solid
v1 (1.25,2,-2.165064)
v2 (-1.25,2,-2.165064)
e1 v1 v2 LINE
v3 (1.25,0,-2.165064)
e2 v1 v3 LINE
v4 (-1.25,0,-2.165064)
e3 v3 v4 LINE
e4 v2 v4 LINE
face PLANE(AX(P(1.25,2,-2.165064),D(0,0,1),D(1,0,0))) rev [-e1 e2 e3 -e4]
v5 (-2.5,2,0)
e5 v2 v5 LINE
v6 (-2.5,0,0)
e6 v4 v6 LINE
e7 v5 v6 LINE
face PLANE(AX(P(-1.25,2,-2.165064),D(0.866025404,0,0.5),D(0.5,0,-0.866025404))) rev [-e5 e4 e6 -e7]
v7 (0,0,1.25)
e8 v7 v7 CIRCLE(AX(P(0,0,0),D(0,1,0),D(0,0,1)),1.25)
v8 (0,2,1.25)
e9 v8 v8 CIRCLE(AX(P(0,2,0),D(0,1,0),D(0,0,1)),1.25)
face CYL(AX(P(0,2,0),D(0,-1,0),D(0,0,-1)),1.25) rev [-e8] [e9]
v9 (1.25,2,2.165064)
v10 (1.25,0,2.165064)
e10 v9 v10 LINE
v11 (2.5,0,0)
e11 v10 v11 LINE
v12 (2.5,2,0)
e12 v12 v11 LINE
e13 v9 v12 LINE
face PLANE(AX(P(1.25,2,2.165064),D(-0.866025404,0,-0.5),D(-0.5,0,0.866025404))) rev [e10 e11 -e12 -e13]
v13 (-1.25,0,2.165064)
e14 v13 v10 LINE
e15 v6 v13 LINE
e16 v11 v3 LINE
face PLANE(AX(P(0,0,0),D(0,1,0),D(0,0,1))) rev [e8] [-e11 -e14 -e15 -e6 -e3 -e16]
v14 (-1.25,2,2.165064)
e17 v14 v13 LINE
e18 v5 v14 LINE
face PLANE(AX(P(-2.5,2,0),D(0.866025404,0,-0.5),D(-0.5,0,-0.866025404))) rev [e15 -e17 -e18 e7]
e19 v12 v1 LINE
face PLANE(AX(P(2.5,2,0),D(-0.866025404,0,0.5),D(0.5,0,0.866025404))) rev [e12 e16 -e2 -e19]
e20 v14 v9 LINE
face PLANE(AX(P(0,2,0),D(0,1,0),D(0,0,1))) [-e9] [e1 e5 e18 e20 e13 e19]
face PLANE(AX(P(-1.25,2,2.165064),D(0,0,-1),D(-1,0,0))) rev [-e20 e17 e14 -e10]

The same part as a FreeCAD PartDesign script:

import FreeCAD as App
import Part
import Sketcher

V = App.Vector
Q = App.Units.Quantity


def add_polygon(sketch, points):
    """Adds a closed chain of lines whose ends are joined by coincident constraints."""
    first, n = sketch.GeometryCount, len(points)
    for a, b in zip(points, points[1:] + points[:1]):
        sketch.addGeometry(Part.LineSegment(App.Vector(*a, 0), App.Vector(*b, 0)), False)
    for i in range(n):
        sketch.addConstraint(Sketcher.Constraint("Coincident", first + i, 2, first + (i + 1) % n, 1))

doc = App.newDocument("Part")
body = doc.addObject("PartDesign::Body", "Body")

sketch1 = body.newObject("Sketcher::SketchObject", "Sketch")
sketch1.AttachmentSupport = (doc.getObject("XZ_Plane"), [""])
sketch1.MapMode = "FlatFace"
add_polygon(sketch1, [(1.2, -2.2), (-1.2, -2.2), (-2.5, 0), (-1.2, 2.2), (1.2, 2.2), (2.5, 0)])
sketch1.addGeometry(Part.Circle(V(0, 0, 0), V(0, 0, 1), 1.2), False)
sketch1.addConstraint([
    Sketcher.Constraint("Horizontal", 0),
    Sketcher.Constraint("Horizontal", 3),
    Sketcher.Constraint("Coincident", 6, 3, -1, 1),
    Sketcher.Constraint("Symmetric", 0, 2, 3, 2, -1, 1),
    Sketcher.Constraint("Symmetric", 1, 2, 4, 2, -1, 1),
    Sketcher.Constraint("PointOnObject", 1, 2, -1),
    Sketcher.Constraint("Parallel", 2, 5),
    Sketcher.Constraint("Vertical", 0, 2, 2, 2),
    Sketcher.Constraint("Diameter", 6, 2.5),
    Sketcher.Constraint("Angle", 1, Q("120 deg")),
    Sketcher.Constraint("DistanceX", 0, 2, 0, 1, 2.5),
    Sketcher.Constraint("DistanceX", 1, 2, 4, 2, 5.0),
])
pad1 = body.newObject("PartDesign::Pad", "Pad")
pad1.Profile = sketch1
pad1.Length = 2
pad1.Reversed = True

doc.recompute()
